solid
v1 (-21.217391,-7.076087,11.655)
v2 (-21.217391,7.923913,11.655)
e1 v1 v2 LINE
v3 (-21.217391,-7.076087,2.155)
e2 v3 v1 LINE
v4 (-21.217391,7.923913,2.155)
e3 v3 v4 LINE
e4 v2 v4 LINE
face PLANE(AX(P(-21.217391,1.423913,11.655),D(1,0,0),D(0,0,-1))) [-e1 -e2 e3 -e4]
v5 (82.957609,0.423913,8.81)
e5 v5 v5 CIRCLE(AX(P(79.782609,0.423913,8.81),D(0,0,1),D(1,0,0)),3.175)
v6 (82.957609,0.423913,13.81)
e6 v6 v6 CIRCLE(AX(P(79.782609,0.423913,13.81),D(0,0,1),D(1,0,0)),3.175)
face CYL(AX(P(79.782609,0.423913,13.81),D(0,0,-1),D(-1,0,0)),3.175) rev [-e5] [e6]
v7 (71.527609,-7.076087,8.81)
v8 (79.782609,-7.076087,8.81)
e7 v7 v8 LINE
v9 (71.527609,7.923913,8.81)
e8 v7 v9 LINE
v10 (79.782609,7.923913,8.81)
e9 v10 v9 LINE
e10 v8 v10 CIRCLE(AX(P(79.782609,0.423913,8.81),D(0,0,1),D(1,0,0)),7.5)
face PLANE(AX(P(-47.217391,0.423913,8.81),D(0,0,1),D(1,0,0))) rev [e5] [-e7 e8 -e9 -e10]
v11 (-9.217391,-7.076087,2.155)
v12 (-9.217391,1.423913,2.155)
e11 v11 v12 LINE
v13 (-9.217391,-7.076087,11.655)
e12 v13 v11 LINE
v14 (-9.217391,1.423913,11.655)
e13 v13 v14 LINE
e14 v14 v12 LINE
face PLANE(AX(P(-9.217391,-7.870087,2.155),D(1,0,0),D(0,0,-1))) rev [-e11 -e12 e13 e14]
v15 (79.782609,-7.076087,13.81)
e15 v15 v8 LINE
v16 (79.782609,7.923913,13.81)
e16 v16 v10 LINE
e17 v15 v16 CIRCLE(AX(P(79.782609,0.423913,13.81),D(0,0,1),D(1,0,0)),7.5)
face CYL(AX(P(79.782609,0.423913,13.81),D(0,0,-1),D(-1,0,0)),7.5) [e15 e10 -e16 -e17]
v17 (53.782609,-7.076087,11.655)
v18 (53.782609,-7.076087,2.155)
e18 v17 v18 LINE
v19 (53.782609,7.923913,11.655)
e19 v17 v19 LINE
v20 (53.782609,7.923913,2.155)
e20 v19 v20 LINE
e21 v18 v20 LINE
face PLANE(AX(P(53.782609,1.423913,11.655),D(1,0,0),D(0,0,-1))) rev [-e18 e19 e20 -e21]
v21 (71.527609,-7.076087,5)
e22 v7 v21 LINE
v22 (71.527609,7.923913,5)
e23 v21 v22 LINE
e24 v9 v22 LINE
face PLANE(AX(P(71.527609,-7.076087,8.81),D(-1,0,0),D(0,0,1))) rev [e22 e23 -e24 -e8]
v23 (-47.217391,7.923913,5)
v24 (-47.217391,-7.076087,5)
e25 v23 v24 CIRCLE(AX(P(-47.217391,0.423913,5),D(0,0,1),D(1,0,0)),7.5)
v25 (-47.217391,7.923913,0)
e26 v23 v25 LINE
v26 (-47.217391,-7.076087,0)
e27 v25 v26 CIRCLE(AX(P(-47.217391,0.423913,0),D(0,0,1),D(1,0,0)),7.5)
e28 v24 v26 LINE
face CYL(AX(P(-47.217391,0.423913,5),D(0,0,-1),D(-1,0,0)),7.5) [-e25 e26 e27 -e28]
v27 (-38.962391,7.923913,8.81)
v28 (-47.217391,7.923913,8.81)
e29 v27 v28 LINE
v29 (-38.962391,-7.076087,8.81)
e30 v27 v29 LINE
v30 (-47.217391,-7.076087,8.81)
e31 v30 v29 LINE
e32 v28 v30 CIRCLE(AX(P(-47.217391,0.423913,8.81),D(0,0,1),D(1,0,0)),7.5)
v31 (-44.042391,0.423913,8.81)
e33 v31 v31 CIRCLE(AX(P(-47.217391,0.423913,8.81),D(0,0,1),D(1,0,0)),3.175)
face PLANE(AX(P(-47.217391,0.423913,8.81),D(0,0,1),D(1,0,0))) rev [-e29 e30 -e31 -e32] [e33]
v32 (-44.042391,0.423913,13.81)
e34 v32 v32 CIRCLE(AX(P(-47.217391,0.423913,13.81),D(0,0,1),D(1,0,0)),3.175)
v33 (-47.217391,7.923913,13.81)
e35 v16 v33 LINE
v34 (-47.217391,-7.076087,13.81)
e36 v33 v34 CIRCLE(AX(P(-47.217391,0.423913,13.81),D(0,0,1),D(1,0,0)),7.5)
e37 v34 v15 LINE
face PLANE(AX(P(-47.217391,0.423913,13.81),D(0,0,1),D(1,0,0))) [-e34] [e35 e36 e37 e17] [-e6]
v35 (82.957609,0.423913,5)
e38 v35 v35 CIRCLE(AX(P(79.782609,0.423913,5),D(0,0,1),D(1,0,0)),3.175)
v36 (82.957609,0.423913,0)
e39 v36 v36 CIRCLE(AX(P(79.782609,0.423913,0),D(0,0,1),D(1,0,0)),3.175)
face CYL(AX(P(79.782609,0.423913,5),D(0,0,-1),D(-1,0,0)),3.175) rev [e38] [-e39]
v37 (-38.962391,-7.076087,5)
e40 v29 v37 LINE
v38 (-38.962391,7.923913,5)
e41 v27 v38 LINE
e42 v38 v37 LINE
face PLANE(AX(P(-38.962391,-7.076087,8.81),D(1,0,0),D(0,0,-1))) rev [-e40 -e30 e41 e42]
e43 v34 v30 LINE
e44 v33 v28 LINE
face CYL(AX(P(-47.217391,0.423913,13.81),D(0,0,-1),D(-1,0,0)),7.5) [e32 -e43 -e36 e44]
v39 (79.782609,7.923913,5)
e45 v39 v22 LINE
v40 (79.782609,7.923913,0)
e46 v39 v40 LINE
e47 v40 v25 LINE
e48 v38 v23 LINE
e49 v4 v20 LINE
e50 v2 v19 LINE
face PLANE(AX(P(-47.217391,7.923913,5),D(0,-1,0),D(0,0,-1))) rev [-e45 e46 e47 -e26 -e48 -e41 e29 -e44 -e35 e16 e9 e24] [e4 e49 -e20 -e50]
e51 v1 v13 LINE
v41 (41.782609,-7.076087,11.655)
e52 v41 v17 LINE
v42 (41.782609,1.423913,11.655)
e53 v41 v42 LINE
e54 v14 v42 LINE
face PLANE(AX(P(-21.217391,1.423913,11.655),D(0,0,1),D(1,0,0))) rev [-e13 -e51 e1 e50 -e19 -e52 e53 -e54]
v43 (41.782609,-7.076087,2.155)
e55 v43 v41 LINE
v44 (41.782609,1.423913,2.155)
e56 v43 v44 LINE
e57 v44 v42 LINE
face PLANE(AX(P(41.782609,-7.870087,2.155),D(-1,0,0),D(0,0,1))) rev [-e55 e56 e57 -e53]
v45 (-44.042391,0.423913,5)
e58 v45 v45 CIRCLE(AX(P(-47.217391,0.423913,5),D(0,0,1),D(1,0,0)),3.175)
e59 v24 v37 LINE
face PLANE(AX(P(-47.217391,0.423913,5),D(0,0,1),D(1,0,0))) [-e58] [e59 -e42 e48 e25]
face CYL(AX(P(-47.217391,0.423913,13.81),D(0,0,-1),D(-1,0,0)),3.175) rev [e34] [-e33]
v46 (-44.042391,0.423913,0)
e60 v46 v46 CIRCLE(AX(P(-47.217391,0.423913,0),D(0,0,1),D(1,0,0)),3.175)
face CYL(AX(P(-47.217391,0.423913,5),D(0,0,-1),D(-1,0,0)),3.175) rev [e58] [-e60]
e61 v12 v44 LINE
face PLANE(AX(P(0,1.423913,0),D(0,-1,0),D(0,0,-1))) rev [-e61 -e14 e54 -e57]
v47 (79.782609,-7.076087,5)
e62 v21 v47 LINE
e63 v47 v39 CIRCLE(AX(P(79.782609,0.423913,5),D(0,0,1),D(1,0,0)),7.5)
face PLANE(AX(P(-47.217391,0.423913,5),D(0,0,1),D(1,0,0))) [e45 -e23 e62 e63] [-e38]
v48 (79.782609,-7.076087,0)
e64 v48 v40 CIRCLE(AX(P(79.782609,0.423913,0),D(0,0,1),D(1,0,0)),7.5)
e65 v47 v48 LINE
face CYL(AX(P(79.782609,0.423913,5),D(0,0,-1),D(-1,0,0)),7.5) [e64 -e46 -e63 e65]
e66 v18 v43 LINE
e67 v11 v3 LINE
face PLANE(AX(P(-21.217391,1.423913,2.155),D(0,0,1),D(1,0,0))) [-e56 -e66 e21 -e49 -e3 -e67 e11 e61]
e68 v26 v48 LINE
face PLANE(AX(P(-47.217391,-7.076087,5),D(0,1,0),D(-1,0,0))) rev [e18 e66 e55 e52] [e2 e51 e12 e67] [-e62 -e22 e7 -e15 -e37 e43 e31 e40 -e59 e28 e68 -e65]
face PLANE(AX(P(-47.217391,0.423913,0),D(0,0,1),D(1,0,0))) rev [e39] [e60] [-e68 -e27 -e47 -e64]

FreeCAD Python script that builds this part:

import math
import FreeCAD as App
import Part
import Sketcher
from FreeCAD import Vector
Q = App.Units.Quantity

doc = App.newDocument("Part")
params = doc.addObject("Spreadsheet::Sheet", "Params")
for row, (alias, value) in enumerate([
    ("sketch1_radius", "7.5 mm"),
    ("sketch1_diameter", "6.35 mm"),
    ("sketch1_width", "127 mm"),
    ("pad1_length", "5 mm"),
    ("sketch2_height", "15 mm"),
    ("sketch2_width", "110.49 mm"),
    ("pad2_length", "3.81 mm"),
    ("sketch3_radius", "7.5 mm"),
    ("sketch3_diameter", "6.35 mm"),
    ("sketch3_width", "127 mm"),
    ("pad3_length", "5 mm"),
    ("sketch4_width", "75 mm"),
    ("sketch4_height", "9.5 mm"),
    ("pocket1_length", "6.5 mm"),
    ("sketch5_width", "12 mm"),
    ("sketch5_height", "9.5 mm"),
    ("pocket2_length", "9.294 mm"),
], start=1):
    params.set(f"A{row}", alias)
    params.set(f"B{row}", "=" + value)
    params.setAlias(f"B{row}", alias)

body = doc.addObject("PartDesign::Body", "Body")

sketch1 = body.newObject("Sketcher::SketchObject", "Sketch")
sketch1.AttachmentSupport = (doc.getObject("XY_Plane"), [""])
sketch1.MapMode = "FlatFace"
sketch1.addGeometry(Part.LineSegment(Vector(79.8, 7.9, 0), Vector(-47.2, 7.9, 0)), False)
sketch1.addGeometry(Part.ArcOfCircle(Part.Circle(Vector(-47.2, 0.4, 0), Vector(0, 0, 1), 7.5), math.radians(90), math.radians(270)), False)
sketch1.addGeometry(Part.LineSegment(Vector(-47.2, -7.1, 0), Vector(79.8, -7.1, 0)), False)
sketch1.addGeometry(Part.ArcOfCircle(Part.Circle(Vector(79.8, 0.4, 0), Vector(0, 0, 1), 7.5), math.radians(-90), math.radians(90)), False)
sketch1.addGeometry(Part.Circle(Vector(79.8, 0.4, 0), Vector(0, 0, 1), 3.2), False)
sketch1.addGeometry(Part.Circle(Vector(-47.2, 0.4, 0), Vector(0, 0, 1), 3.2), False)
sketch1.addConstraint(Sketcher.Constraint("Tangent", 0, 2, 1, 1))
sketch1.addConstraint(Sketcher.Constraint("Tangent", 1, 2, 2, 1))
sketch1.addConstraint(Sketcher.Constraint("Tangent", 2, 2, 3, 1))
sketch1.addConstraint(Sketcher.Constraint("Tangent", 3, 2, 0, 1))
sketch1.addConstraint(Sketcher.Constraint("Horizontal", 0))
sketch1.addConstraint(Sketcher.Constraint("Horizontal", 2))
sketch1.addConstraint(Sketcher.Constraint("Coincident", 4, 3, 3, 3))
sketch1.addConstraint(Sketcher.Constraint("Coincident", 5, 3, 1, 3))
sketch1.addConstraint(Sketcher.Constraint("Equal", 4, 5))
sketch1.addConstraint(Sketcher.Constraint("Radius", 1, Q("7.5 mm")))
sketch1.addConstraint(Sketcher.Constraint("Diameter", 4, Q("6.35 mm")))
sketch1.addConstraint(Sketcher.Constraint("DistanceX", 0, 2, 0, 1, Q("127 mm")))
sketch1.addConstraint(Sketcher.Constraint("DistanceX", 1, 3, -1, 1, Q("47.217391 mm")))
sketch1.addConstraint(Sketcher.Constraint("DistanceY", -1, 1, 1, 3, Q("0.423913 mm")))
sketch1.setExpression("Constraints[9]", "Params.sketch1_radius")
sketch1.setExpression("Constraints[10]", "Params.sketch1_diameter")
sketch1.setExpression("Constraints[11]", "Params.sketch1_width")
pad1 = body.newObject("PartDesign::Pad", "Pad")
pad1.Profile = sketch1
pad1.setExpression("Length", "Params.pad1_length")

sketch2 = body.newObject("Sketcher::SketchObject", "Sketch001")
sketch2.AttachmentSupport = (doc.getObject("XY_Plane"), [""])
sketch2.MapMode = "FlatFace"
sketch2.AttachmentOffset = App.Placement(Vector(0, 0, 5), App.Rotation())
sketch2.addGeometry(Part.LineSegment(Vector(-39, 8, 0), Vector(-39, -7, 0)), False)
sketch2.addGeometry(Part.LineSegment(Vector(-39, -7, 0), Vector(72, -7, 0)), False)
sketch2.addGeometry(Part.LineSegment(Vector(72, -7, 0), Vector(72, 8, 0)), False)
sketch2.addGeometry(Part.LineSegment(Vector(72, 8, 0), Vector(-39, 8, 0)), False)
sketch2.addConstraint(Sketcher.Constraint("Coincident", 0, 2, 1, 1))
sketch2.addConstraint(Sketcher.Constraint("Coincident", 1, 2, 2, 1))
sketch2.addConstraint(Sketcher.Constraint("Coincident", 2, 2, 3, 1))
sketch2.addConstraint(Sketcher.Constraint("Coincident", 3, 2, 0, 1))
sketch2.addConstraint(Sketcher.Constraint("Vertical", 0))
sketch2.addConstraint(Sketcher.Constraint("Horizontal", 1))
sketch2.addConstraint(Sketcher.Constraint("Vertical", 2))
sketch2.addConstraint(Sketcher.Constraint("Horizontal", 3))
sketch2.addConstraint(Sketcher.Constraint("DistanceY", 0, 2, 0, 1, Q("15 mm")))
sketch2.addConstraint(Sketcher.Constraint("DistanceX", 1, 1, 1, 2, Q("110.49 mm")))
sketch2.addConstraint(Sketcher.Constraint("DistanceX", 0, 2, -1, 1, Q("38.962391 mm")))
sketch2.addConstraint(Sketcher.Constraint("DistanceY", 0, 2, -1, 1, Q("7.076087 mm")))
sketch2.setExpression("Constraints[8]", "Params.sketch2_height")
sketch2.setExpression("Constraints[9]", "Params.sketch2_width")
pad2 = body.newObject("PartDesign::Pad", "Pad001")
pad2.Profile = sketch2
pad2.setExpression("Length", "Params.pad2_length")

sketch3 = body.newObject("Sketcher::SketchObject", "Sketch002")
sketch3.AttachmentSupport = (doc.getObject("XY_Plane"), [""])
sketch3.MapMode = "FlatFace"
sketch3.AttachmentOffset = App.Placement(Vector(0, 0, 8.81), App.Rotation())
sketch3.addGeometry(Part.LineSegment(Vector(79.8, 7.9, 0), Vector(-47.2, 7.9, 0)), False)
sketch3.addGeometry(Part.ArcOfCircle(Part.Circle(Vector(-47.2, 0.4, 0), Vector(0, 0, 1), 7.5), math.radians(90), math.radians(270)), False)
sketch3.addGeometry(Part.LineSegment(Vector(-47.2, -7.1, 0), Vector(79.8, -7.1, 0)), False)
sketch3.addGeometry(Part.ArcOfCircle(Part.Circle(Vector(79.8, 0.4, 0), Vector(0, 0, 1), 7.5), math.radians(-90), math.radians(90)), False)
sketch3.addGeometry(Part.Circle(Vector(79.8, 0.4, 0), Vector(0, 0, 1), 3.2), False)
sketch3.addGeometry(Part.Circle(Vector(-47.2, 0.4, 0), Vector(0, 0, 1), 3.2), False)
sketch3.addConstraint(Sketcher.Constraint("Tangent", 0, 2, 1, 1))
sketch3.addConstraint(Sketcher.Constraint("Tangent", 1, 2, 2, 1))
sketch3.addConstraint(Sketcher.Constraint("Tangent", 2, 2, 3, 1))
sketch3.addConstraint(Sketcher.Constraint("Tangent", 3, 2, 0, 1))
sketch3.addConstraint(Sketcher.Constraint("Horizontal", 0))
sketch3.addConstraint(Sketcher.Constraint("Horizontal", 2))
sketch3.addConstraint(Sketcher.Constraint("Coincident", 4, 3, 3, 3))
sketch3.addConstraint(Sketcher.Constraint("Coincident", 5, 3, 1, 3))
sketch3.addConstraint(Sketcher.Constraint("Equal", 4, 5))
sketch3.addConstraint(Sketcher.Constraint("Radius", 1, Q("7.5 mm")))
sketch3.addConstraint(Sketcher.Constraint("Diameter", 4, Q("6.35 mm")))
sketch3.addConstraint(Sketcher.Constraint("DistanceX", 0, 2, 0, 1, Q("127 mm")))
sketch3.addConstraint(Sketcher.Constraint("DistanceX", 1, 3, -1, 1, Q("47.217391 mm")))
sketch3.addConstraint(Sketcher.Constraint("DistanceY", -1, 1, 1, 3, Q("0.423913 mm")))
sketch3.setExpression("Constraints[9]", "Params.sketch3_radius")
sketch3.setExpression("Constraints[10]", "Params.sketch3_diameter")
sketch3.setExpression("Constraints[11]", "Params.sketch3_width")
pad3 = body.newObject("PartDesign::Pad", "Pad002")
pad3.Profile = sketch3
pad3.setExpression("Length", "Params.pad3_length")

sketch4 = body.newObject("Sketcher::SketchObject", "Sketch003")
sketch4.AttachmentSupport = (doc.getObject("XZ_Plane"), [""])
sketch4.MapMode = "FlatFace"
sketch4.AttachmentOffset = App.Placement(Vector(0, 0, -7.923913), App.Rotation())
sketch4.addGeometry(Part.LineSegment(Vector(-21, 2, 0), Vector(-21, 12, 0)), False)
sketch4.addGeometry(Part.LineSegment(Vector(-21, 12, 0), Vector(54, 12, 0)), False)
sketch4.addGeometry(Part.LineSegment(Vector(54, 12, 0), Vector(54, 2, 0)), False)
sketch4.addGeometry(Part.LineSegment(Vector(54, 2, 0), Vector(-21, 2, 0)), False)
sketch4.addConstraint(Sketcher.Constraint("Coincident", 0, 2, 1, 1))
sketch4.addConstraint(Sketcher.Constraint("Coincident", 1, 2, 2, 1))
sketch4.addConstraint(Sketcher.Constraint("Coincident", 2, 2, 3, 1))
sketch4.addConstraint(Sketcher.Constraint("Coincident", 3, 2, 0, 1))
sketch4.addConstraint(Sketcher.Constraint("Vertical", 0))
sketch4.addConstraint(Sketcher.Constraint("Horizontal", 1))
sketch4.addConstraint(Sketcher.Constraint("Vertical", 2))
sketch4.addConstraint(Sketcher.Constraint("Horizontal", 3))
sketch4.addConstraint(Sketcher.Constraint("DistanceX", 1, 1, 1, 2, Q("75 mm")))
sketch4.addConstraint(Sketcher.Constraint("DistanceY", 0, 1, 0, 2, Q("9.5 mm")))
sketch4.addConstraint(Sketcher.Constraint("DistanceY", -1, 1, 0, 2, Q("11.655 mm")))
sketch4.addConstraint(Sketcher.Constraint("DistanceX", 0, 2, -1, 1, Q("21.217391 mm")))
sketch4.setExpression("Constraints[8]", "Params.sketch4_width")
sketch4.setExpression("Constraints[9]", "Params.sketch4_height")
pocket1 = body.newObject("PartDesign::Pocket", "Pocket")
pocket1.Profile = sketch4
pocket1.setExpression("Length", "Params.pocket1_length")
pocket1.Reversed = True

sketch5 = body.newObject("Sketcher::SketchObject", "Sketch004")
sketch5.AttachmentSupport = (doc.getObject("XZ_Plane"), [""])
sketch5.MapMode = "FlatFace"
sketch5.AttachmentOffset = App.Placement(Vector(0, 0, -1.423913), App.Rotation())
sketch5.addGeometry(Part.LineSegment(Vector(-21, 2, 0), Vector(-21, 12, 0)), False)
sketch5.addGeometry(Part.LineSegment(Vector(-21, 12, 0), Vector(-9, 12, 0)), False)
sketch5.addGeometry(Part.LineSegment(Vector(-9, 12, 0), Vector(-9, 2, 0)), False)
sketch5.addGeometry(Part.LineSegment(Vector(-9, 2, 0), Vector(-21, 2, 0)), False)
sketch5.addGeometry(Part.LineSegment(Vector(42, 2, 0), Vector(42, 12, 0)), False)
sketch5.addGeometry(Part.LineSegment(Vector(42, 12, 0), Vector(54, 12, 0)), False)
sketch5.addGeometry(Part.LineSegment(Vector(54, 12, 0), Vector(54, 2, 0)), False)
sketch5.addGeometry(Part.LineSegment(Vector(54, 2, 0), Vector(42, 2, 0)), False)
sketch5.addConstraint(Sketcher.Constraint("Coincident", 0, 2, 1, 1))
sketch5.addConstraint(Sketcher.Constraint("Coincident", 1, 2, 2, 1))
sketch5.addConstraint(Sketcher.Constraint("Coincident", 2, 2, 3, 1))
sketch5.addConstraint(Sketcher.Constraint("Coincident", 3, 2, 0, 1))
sketch5.addConstraint(Sketcher.Constraint("Coincident", 4, 2, 5, 1))
sketch5.addConstraint(Sketcher.Constraint("Coincident", 5, 2, 6, 1))
sketch5.addConstraint(Sketcher.Constraint("Coincident", 6, 2, 7, 1))
sketch5.addConstraint(Sketcher.Constraint("Coincident", 7, 2, 4, 1))
sketch5.addConstraint(Sketcher.Constraint("Vertical", 0))
sketch5.addConstraint(Sketcher.Constraint("Horizontal", 1))
sketch5.addConstraint(Sketcher.Constraint("Vertical", 2))
sketch5.addConstraint(Sketcher.Constraint("Horizontal", 3))
sketch5.addConstraint(Sketcher.Constraint("Vertical", 4))
sketch5.addConstraint(Sketcher.Constraint("Horizontal", 5))
sketch5.addConstraint(Sketcher.Constraint("Vertical", 6))
sketch5.addConstraint(Sketcher.Constraint("Horizontal", 7))
sketch5.addConstraint(Sketcher.Constraint("Horizontal", 1, 2, 4, 2))
sketch5.addConstraint(Sketcher.Constraint("Horizontal", 3, 2, 6, 2))
sketch5.addConstraint(Sketcher.Constraint("Equal", 3, 5))
sketch5.addConstraint(Sketcher.Constraint("DistanceX", 1, 1, 1, 2, Q("12 mm")))
sketch5.addConstraint(Sketcher.Constraint("DistanceY", 0, 1, 0, 2, Q("9.5 mm")))
sketch5.addConstraint(Sketcher.Constraint("DistanceX", 1, 2, 4, 2, Q("51 mm")))
sketch5.addConstraint(Sketcher.Constraint("DistanceY", -1, 1, 0, 2, Q("11.655 mm")))
sketch5.addConstraint(Sketcher.Constraint("DistanceX", 0, 2, -1, 1, Q("21.217391 mm")))
sketch5.setExpression("Constraints[19]", "Params.sketch5_width")
sketch5.setExpression("Constraints[20]", "Params.sketch5_height")
pocket2 = body.newObject("PartDesign::Pocket", "Pocket001")
pocket2.Profile = sketch5
pocket2.setExpression("Length", "Params.pocket2_length")
pocket2.Reversed = True

doc.recompute()
